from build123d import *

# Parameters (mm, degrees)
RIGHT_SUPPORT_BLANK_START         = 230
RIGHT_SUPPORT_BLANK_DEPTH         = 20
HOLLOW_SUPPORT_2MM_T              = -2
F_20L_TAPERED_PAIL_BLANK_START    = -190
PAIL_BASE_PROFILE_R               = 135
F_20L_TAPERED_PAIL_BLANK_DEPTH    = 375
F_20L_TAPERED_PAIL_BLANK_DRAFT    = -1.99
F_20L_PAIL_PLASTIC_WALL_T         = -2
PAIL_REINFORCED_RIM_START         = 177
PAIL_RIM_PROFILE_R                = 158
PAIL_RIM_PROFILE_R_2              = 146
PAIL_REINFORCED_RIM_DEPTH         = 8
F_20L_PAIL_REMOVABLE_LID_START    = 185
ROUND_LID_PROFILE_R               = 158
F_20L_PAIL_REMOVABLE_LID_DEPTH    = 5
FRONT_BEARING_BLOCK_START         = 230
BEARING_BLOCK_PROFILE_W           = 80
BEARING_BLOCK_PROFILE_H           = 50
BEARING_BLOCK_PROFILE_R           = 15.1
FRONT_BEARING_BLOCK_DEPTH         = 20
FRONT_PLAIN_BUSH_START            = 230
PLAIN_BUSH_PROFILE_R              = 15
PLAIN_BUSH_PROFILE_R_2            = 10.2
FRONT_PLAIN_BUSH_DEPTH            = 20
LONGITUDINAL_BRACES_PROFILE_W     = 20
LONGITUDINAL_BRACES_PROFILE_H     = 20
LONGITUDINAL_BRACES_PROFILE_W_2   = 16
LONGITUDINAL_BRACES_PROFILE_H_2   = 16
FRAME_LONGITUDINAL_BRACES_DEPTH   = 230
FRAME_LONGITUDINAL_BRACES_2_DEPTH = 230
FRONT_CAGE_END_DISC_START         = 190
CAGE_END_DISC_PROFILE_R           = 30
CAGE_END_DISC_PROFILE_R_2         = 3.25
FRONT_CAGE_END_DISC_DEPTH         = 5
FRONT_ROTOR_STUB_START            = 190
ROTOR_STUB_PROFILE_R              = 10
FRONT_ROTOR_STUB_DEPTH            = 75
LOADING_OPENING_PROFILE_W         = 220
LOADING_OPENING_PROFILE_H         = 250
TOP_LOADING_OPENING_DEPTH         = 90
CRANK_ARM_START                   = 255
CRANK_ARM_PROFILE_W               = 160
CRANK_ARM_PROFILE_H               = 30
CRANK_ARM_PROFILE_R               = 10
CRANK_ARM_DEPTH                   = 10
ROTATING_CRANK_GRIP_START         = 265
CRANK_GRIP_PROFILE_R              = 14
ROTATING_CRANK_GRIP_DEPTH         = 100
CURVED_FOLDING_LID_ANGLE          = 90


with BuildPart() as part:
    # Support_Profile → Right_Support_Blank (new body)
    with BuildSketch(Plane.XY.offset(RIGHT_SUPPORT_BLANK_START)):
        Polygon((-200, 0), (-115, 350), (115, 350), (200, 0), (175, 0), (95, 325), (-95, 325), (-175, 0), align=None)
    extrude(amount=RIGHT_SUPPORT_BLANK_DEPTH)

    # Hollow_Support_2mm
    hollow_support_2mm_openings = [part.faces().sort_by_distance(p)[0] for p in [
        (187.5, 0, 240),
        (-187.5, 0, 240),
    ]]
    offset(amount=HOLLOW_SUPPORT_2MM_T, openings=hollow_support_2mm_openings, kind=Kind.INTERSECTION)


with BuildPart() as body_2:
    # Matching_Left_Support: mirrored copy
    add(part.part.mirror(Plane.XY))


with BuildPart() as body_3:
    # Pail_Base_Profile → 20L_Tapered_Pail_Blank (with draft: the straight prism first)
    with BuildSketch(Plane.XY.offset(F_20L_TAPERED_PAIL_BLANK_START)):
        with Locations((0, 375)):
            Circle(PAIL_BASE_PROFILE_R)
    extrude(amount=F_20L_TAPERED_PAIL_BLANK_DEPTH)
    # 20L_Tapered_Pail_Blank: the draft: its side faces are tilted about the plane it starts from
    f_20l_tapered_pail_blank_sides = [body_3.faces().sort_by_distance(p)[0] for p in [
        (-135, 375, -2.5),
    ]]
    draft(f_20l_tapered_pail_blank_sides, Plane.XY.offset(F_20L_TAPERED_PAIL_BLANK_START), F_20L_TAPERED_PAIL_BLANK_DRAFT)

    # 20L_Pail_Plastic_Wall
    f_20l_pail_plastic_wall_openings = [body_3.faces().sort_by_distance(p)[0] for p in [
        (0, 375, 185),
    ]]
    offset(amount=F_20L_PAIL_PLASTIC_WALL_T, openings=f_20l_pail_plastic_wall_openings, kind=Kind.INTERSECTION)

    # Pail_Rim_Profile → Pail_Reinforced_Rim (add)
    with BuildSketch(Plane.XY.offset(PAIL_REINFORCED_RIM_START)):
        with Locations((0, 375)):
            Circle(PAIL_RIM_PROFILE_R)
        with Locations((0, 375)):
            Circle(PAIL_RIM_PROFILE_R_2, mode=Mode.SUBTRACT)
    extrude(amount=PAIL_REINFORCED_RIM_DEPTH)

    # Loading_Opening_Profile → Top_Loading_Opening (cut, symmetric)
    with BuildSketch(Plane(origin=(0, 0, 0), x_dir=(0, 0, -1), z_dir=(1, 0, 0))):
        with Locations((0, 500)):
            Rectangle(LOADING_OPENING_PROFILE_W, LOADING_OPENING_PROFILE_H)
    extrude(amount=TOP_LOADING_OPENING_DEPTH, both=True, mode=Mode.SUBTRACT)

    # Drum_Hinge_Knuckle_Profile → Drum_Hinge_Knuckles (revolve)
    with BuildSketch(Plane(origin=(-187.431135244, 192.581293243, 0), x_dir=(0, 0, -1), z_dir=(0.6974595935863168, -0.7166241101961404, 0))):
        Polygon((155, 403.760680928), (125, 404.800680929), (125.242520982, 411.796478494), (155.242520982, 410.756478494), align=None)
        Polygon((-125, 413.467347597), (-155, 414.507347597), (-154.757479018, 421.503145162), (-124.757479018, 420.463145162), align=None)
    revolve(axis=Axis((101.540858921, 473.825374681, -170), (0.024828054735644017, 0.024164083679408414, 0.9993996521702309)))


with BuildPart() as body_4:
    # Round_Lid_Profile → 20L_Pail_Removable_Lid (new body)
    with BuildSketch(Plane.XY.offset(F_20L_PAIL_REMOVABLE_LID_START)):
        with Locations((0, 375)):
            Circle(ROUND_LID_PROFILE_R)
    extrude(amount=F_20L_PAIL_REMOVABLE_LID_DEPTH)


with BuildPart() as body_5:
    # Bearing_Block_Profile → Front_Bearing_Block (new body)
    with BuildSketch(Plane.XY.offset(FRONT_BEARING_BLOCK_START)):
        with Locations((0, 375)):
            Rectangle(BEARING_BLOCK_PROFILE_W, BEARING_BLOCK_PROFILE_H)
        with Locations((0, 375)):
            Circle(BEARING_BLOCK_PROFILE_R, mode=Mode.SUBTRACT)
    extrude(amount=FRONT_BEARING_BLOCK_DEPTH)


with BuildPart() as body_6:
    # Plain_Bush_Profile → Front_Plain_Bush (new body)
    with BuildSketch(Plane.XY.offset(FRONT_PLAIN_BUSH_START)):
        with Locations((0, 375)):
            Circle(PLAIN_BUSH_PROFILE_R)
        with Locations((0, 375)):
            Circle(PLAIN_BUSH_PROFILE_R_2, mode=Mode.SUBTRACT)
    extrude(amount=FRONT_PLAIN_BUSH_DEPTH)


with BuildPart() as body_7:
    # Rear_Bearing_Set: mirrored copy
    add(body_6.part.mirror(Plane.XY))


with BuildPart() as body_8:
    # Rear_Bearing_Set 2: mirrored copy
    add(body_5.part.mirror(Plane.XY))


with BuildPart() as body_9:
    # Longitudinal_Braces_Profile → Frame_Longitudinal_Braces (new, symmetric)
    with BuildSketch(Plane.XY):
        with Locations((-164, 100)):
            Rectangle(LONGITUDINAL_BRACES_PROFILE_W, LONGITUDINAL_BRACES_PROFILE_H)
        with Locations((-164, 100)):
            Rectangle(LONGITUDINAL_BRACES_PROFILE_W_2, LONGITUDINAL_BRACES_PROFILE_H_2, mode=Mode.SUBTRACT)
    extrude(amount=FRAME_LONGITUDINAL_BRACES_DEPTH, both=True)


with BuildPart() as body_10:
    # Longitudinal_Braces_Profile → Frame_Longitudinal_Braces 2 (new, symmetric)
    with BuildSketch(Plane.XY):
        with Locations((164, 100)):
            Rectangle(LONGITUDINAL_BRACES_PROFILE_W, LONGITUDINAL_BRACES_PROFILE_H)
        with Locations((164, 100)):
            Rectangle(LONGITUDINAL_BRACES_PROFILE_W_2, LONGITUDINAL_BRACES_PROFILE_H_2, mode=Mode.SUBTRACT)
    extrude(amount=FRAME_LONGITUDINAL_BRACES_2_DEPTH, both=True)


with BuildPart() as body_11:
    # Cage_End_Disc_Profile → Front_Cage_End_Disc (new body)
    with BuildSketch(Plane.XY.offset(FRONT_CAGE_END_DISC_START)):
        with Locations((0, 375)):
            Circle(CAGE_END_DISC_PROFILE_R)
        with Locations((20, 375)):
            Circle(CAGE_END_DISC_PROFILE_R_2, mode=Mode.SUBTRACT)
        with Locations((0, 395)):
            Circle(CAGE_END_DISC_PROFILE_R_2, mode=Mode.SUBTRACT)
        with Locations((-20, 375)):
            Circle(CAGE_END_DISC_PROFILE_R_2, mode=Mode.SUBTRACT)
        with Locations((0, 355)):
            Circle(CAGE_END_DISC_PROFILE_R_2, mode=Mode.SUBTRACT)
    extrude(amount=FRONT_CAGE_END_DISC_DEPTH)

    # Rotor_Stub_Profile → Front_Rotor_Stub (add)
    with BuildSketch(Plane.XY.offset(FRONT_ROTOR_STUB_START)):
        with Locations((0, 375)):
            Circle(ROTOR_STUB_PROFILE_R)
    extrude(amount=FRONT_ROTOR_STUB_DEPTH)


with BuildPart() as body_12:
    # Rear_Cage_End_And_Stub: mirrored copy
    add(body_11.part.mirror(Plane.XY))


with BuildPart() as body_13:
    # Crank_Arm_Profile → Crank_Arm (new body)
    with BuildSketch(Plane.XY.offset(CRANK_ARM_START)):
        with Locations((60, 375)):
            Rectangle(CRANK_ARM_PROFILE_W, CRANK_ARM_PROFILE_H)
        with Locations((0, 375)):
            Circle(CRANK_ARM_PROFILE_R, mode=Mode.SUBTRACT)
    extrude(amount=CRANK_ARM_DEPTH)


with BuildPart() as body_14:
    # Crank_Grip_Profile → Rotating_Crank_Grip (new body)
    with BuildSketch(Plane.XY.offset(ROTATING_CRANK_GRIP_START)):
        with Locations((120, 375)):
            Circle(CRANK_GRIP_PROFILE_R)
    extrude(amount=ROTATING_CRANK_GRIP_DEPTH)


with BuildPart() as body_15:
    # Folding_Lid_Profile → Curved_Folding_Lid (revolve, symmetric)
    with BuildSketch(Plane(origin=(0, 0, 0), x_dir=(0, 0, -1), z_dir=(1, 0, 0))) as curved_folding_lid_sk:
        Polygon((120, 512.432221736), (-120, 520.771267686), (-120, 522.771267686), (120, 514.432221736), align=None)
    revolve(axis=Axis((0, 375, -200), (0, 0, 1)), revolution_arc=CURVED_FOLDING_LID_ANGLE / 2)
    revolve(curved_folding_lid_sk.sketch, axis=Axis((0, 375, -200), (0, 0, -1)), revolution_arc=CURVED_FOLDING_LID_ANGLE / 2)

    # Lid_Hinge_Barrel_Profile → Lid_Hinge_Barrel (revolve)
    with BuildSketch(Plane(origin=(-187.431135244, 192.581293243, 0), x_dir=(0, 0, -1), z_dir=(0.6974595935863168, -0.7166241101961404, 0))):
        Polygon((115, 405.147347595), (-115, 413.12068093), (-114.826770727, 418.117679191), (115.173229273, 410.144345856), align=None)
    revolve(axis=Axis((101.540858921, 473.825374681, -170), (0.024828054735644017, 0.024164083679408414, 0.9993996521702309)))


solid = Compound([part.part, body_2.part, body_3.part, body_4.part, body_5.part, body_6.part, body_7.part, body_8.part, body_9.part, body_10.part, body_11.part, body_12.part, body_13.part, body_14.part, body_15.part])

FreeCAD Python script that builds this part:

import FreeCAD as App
import Part
import Sketcher
from FreeCAD import Vector
Q = App.Units.Quantity


def faces_at(feature, points):
    """Names of the faces that lie closest to the given points."""
    faces = feature.Shape.Faces
    near = lambda p: min(range(len(faces)), key=lambda i: faces[i].distToShape(Part.Vertex(*p))[0])
    return sorted({f"Face{near(p) + 1}" for p in points})


def add_polygon(sketch, points):
    """Adds a closed chain of lines whose ends are joined by coincident constraints."""
    first, n = sketch.GeometryCount, len(points)
    for a, b in zip(points, points[1:] + points[:1]):
        sketch.addGeometry(Part.LineSegment(App.Vector(*a, 0), App.Vector(*b, 0)), False)
    for i in range(n):
        sketch.addConstraint(Sketcher.Constraint("Coincident", first + i, 2, first + (i + 1) % n, 1))

doc = App.newDocument("Part")
params = doc.addObject("Spreadsheet::Sheet", "Params")
for row, (alias, value) in enumerate([
    ("sketch1_width", "25 mm"),
    ("sketch1_width2", "190 mm"),
    ("sketch1_width3", "230 mm"),
    ("pad1_length", "20 mm"),
    ("thickness_wall", "2 mm"),
    ("sketch2_diameter", "270 mm"),
    ("pad2_length", "375 mm"),
    ("draft_angle", "1.99 deg"),
    ("thickness2_wall", "2 mm"),
    ("sketch3_diameter", "316 mm"),
    ("sketch3_diameter2", "292 mm"),
    ("pad3_length", "8 mm"),
    ("sketch4_width", "250 mm"),
    ("sketch4_height", "220 mm"),
    ("pocket1_length", "180 mm"),
    ("sketch5_length", "7 mm"),
    ("revolution_angle", "360 deg"),
    ("sketch6_diameter", "316 mm"),
    ("pad4_length", "5 mm"),
    ("sketch7_diameter", "30.2 mm"),
    ("sketch7_width", "80 mm"),
    ("sketch7_height", "50 mm"),
    ("pad5_length", "20 mm"),
    ("sketch8_diameter", "30 mm"),
    ("sketch8_diameter2", "20.4 mm"),
    ("pad6_length", "20 mm"),
    ("sketch9_width", "20 mm"),
    ("sketch9_width2", "16 mm"),
    ("pad7_length", "460 mm"),
    ("sketch10_width", "20 mm"),
    ("sketch10_width2", "16 mm"),
    ("pad8_length", "460 mm"),
    ("sketch11_diameter", "60 mm"),
    ("sketch11_diameter2", "6.5 mm"),
    ("pad9_length", "5 mm"),
    ("sketch12_diameter", "20 mm"),
    ("pad10_length", "75 mm"),
    ("sketch13_diameter", "20 mm"),
    ("sketch13_width", "160 mm"),
    ("sketch13_height", "30 mm"),
    ("pad11_length", "10 mm"),
    ("sketch14_diameter", "28 mm"),
    ("pad12_length", "100 mm"),
    ("sketch15_width", "2 mm"),
    ("sketch15_height", "240 mm"),
    ("revolution2_angle", "45 deg"),
    ("sketch16_width", "2 mm"),
    ("sketch16_height", "240 mm"),
    ("revolution3_angle", "45 deg"),
    ("sketch17_length", "5 mm"),
    ("revolution4_angle", "360 deg"),
], start=1):
    params.set(f"A{row}", alias)
    params.set(f"B{row}", "=" + value)
    params.setAlias(f"B{row}", alias)

body = doc.addObject("PartDesign::Body", "Body")

# Sketch on XY plane
sketch1 = body.newObject("Sketcher::SketchObject", "Sketch")
sketch1.AttachmentSupport = (doc.getObject("XY_Plane"), [""])
sketch1.MapMode = "FlatFace"
sketch1.AttachmentOffset = App.Placement(Vector(0, 0, 230), App.Rotation())
add_polygon(sketch1, [(-115, 350), (-200, 0), (-175, 0), (-95, 325), (95, 325), (175, 0), (200, 0), (115, 350)])  # lines 0-7
sketch1.addConstraint(Sketcher.Constraint("Horizontal", 1))
sketch1.addConstraint(Sketcher.Constraint("Horizontal", 3))
sketch1.addConstraint(Sketcher.Constraint("Horizontal", 5))
sketch1.addConstraint(Sketcher.Constraint("Horizontal", 7))
sketch1.addConstraint(Sketcher.Constraint("Symmetric", 1, 2, 4, 2, -1, 1))
sketch1.addConstraint(Sketcher.Constraint("Symmetric", 0, 2, 5, 2, -2))
sketch1.addConstraint(Sketcher.Constraint("Equal", 2, 4))
sketch1.addConstraint(Sketcher.Constraint("Equal", 0, 6))
sketch1.addConstraint(Sketcher.Constraint("DistanceX", 1, 1, 1, 2, Q("25 mm")))
sketch1.addConstraint(Sketcher.Constraint("DistanceX", 3, 1, 3, 2, Q("190 mm")))
sketch1.addConstraint(Sketcher.Constraint("DistanceX", 7, 2, 7, 1, Q("230 mm")))
sketch1.addConstraint(Sketcher.Constraint("DistanceX", 0, 2, -1, 1, Q("200 mm")))
sketch1.addConstraint(Sketcher.Constraint("DistanceY", -1, 1, 2, 2, Q("325 mm")))
sketch1.addConstraint(Sketcher.Constraint("DistanceY", -1, 1, 6, 2, Q("350 mm")))
sketch1.setExpression("Constraints[16]", "Params.sketch1_width")
sketch1.setExpression("Constraints[17]", "Params.sketch1_width2")
sketch1.setExpression("Constraints[18]", "Params.sketch1_width3")
pad1 = body.newObject("PartDesign::Pad", "Pad")
pad1.Profile = sketch1
pad1.setExpression("Length", "Params.pad1_length")
doc.recompute()

thickness = body.newObject("PartDesign::Thickness", "Thickness")
thickness.Base = (pad1, faces_at(pad1, [(187.5, 0, 240), (-187.5, 0, 240)]))
thickness.setExpression("Value", "Params.thickness_wall")
thickness.Reversed = True
thickness.Join = "Intersection"
body2 = doc.addObject("PartDesign::Body", "Body001")
doc.recompute()

mirroring = doc.addObject("Part::Mirroring", "Mirroring")
mirroring.Source = body
mirroring.Base = Vector(0, 0, 0)
mirroring.Normal = Vector(0, 0, 1)
body2.BaseFeature = mirroring
doc.recompute()
body3 = doc.addObject("PartDesign::Body", "Body002")

# Sketch on XY plane
sketch2 = body3.newObject("Sketcher::SketchObject", "Sketch001")
sketch2.AttachmentSupport = (doc.getObject("XY_Plane002"), [""])
sketch2.MapMode = "FlatFace"
sketch2.AttachmentOffset = App.Placement(Vector(0, 0, -190), App.Rotation())
sketch2.addGeometry(Part.Circle(Vector(0, 375, 0), Vector(0, 0, 1), 135), False)
sketch2.addConstraint(Sketcher.Constraint("PointOnObject", 0, 3, -2))
sketch2.addConstraint(Sketcher.Constraint("Diameter", 0, Q("270 mm")))
sketch2.addConstraint(Sketcher.Constraint("DistanceY", -1, 1, 0, 3, Q("375 mm")))
sketch2.setExpression("Constraints[1]", "Params.sketch2_diameter")
pad2 = body3.newObject("PartDesign::Pad", "Pad001")
pad2.Profile = sketch2
pad2.setExpression("Length", "Params.pad2_length")
doc.recompute()

datumplane = body3.newObject("PartDesign::Plane", "DatumPlane")
datumplane.AttachmentSupport = (doc.getObject("XY_Plane002"), [""])
datumplane.MapMode = "FlatFace"
datumplane.AttachmentOffset = App.Placement(Vector(0, 0, -190), App.Rotation())
draft = body3.newObject("PartDesign::Draft", "Draft")
draft.Base = (pad2, faces_at(pad2, [(-135, 375, -2.5)]))
draft.NeutralPlane = (datumplane, [""])
draft.setExpression("Angle", "Params.draft_angle")
draft.Reversed = True
doc.recompute()

thickness2 = body3.newObject("PartDesign::Thickness", "Thickness001")
thickness2.Base = (draft, faces_at(draft, [(0, 375, 185)]))
thickness2.setExpression("Value", "Params.thickness2_wall")
thickness2.Reversed = True
thickness2.Join = "Intersection"

# Sketch on XY plane
sketch3 = body3.newObject("Sketcher::SketchObject", "Sketch002")
sketch3.AttachmentSupport = (doc.getObject("XY_Plane002"), [""])
sketch3.MapMode = "FlatFace"
sketch3.AttachmentOffset = App.Placement(Vector(0, 0, 177), App.Rotation())
sketch3.addGeometry(Part.Circle(Vector(0, 375, 0), Vector(0, 0, 1), 158), False)
sketch3.addGeometry(Part.Circle(Vector(0, 375, 0), Vector(0, 0, 1), 146), False)
sketch3.addConstraint(Sketcher.Constraint("Coincident", 1, 3, 0, 3))
sketch3.addConstraint(Sketcher.Constraint("PointOnObject", 0, 3, -2))
sketch3.addConstraint(Sketcher.Constraint("Diameter", 0, Q("316 mm")))
sketch3.addConstraint(Sketcher.Constraint("Diameter", 1, Q("292 mm")))
sketch3.addConstraint(Sketcher.Constraint("DistanceY", -1, 1, 0, 3, Q("375 mm")))
sketch3.setExpression("Constraints[2]", "Params.sketch3_diameter")
sketch3.setExpression("Constraints[3]", "Params.sketch3_diameter2")
pad3 = body3.newObject("PartDesign::Pad", "Pad002")
pad3.Profile = sketch3
pad3.setExpression("Length", "Params.pad3_length")

# Sketch on YZ plane
sketch4 = body3.newObject("Sketcher::SketchObject", "Sketch003")
sketch4.AttachmentSupport = (doc.getObject("YZ_Plane002"), [""])
sketch4.MapMode = "FlatFace"
add_polygon(sketch4, [(625, 110), (375, 110), (375, -110), (625, -110)])  # lines 0-3
sketch4.addConstraint(Sketcher.Constraint("Horizontal", 0))
sketch4.addConstraint(Sketcher.Constraint("Vertical", 1))
sketch4.addConstraint(Sketcher.Constraint("Horizontal", 2))
sketch4.addConstraint(Sketcher.Constraint("Vertical", 3))
sketch4.addConstraint(Sketcher.Constraint("DistanceX", 0, 2, 0, 1, Q("250 mm")))
sketch4.addConstraint(Sketcher.Constraint("DistanceY", 1, 2, 1, 1, Q("220 mm")))
sketch4.addConstraint(Sketcher.Constraint("DistanceX", -1, 1, 0, 2, Q("375 mm")))
sketch4.addConstraint(Sketcher.Constraint("DistanceY", -1, 1, 0, 2, Q("110 mm")))
sketch4.setExpression("Constraints[8]", "Params.sketch4_width")
sketch4.setExpression("Constraints[9]", "Params.sketch4_height")
pocket1 = body3.newObject("PartDesign::Pocket", "Pocket")
pocket1.Profile = sketch4
pocket1.setExpression("Length", "Params.pocket1_length")
pocket1.Midplane = True

# Sketch on an angled plane
sketch5 = body3.newObject("Sketcher::SketchObject", "Sketch004")
sketch5.Placement = App.Placement(Vector(-187.431135, 192.581293, 0), App.Rotation(Vector(0, 0, -1), Vector(0.71662411, 0.697459594, 0), Vector(0.697459594, -0.71662411, 0), "ZXY"))
add_polygon(sketch5, [(125, 405), (155, 404), (155, 411), (125, 412)])  # lines 0-3
add_polygon(sketch5, [(-155, 415), (-125, 413), (-125, 420), (-155, 422)])  # lines 4-7
sketch5.addGeometry(Part.LineSegment(Vector(155, 404, 0), Vector(-155, 415, 0)), True)  # axis
sketch5.addConstraint(Sketcher.Constraint("Coincident", 8, 1, 0, 2))
sketch5.addConstraint(Sketcher.Constraint("Coincident", 8, 2, 7, 2))
sketch5.addConstraint(Sketcher.Constraint("Perpendicular", 0, 1))
sketch5.addConstraint(Sketcher.Constraint("Perpendicular", 1, 2))
sketch5.addConstraint(Sketcher.Constraint("Perpendicular", 2, 3))
sketch5.addConstraint(Sketcher.Constraint("Perpendicular", 3, 4))
sketch5.addConstraint(Sketcher.Constraint("Perpendicular", 4, 5))
sketch5.addConstraint(Sketcher.Constraint("Perpendicular", 5, 6))
sketch5.addConstraint(Sketcher.Constraint("Perpendicular", 6, 7))
sketch5.addConstraint(Sketcher.Constraint("Perpendicular", 7, 8))
sketch5.addConstraint(Sketcher.Constraint("Equal", 2, 4))
sketch5.addConstraint(Sketcher.Constraint("Equal", 3, 5))
sketch5.addConstraint(Sketcher.Constraint("Distance", 1, Q("7 mm")))
sketch5.addConstraint(Sketcher.Constraint("DistanceX", -1, 1, 0, 2, Q("155 mm")))
sketch5.addConstraint(Sketcher.Constraint("DistanceX", -1, 1, 3, 2, Q("125 mm")))
sketch5.addConstraint(Sketcher.Constraint("DistanceX", 4, 2, -1, 1, Q("125 mm")))
sketch5.addConstraint(Sketcher.Constraint("DistanceY", 1, 2, 2, 2, Q("1.04 mm")))
sketch5.addConstraint(Sketcher.Constraint("DistanceY", -1, 1, 0, 2, Q("403.760681 mm")))
sketch5.setExpression("Constraints[20]", "Params.sketch5_length")
revolution = body3.newObject("PartDesign::Revolution", "Revolution")
revolution.Profile = sketch5
revolution.ReferenceAxis = (sketch5, ["Axis0"])
revolution.setExpression("Angle", "Params.revolution_angle")
body4 = doc.addObject("PartDesign::Body", "Body003")

# Sketch on XY plane
sketch6 = body4.newObject("Sketcher::SketchObject", "Sketch005")
sketch6.AttachmentSupport = (doc.getObject("XY_Plane003"), [""])
sketch6.MapMode = "FlatFace"
sketch6.AttachmentOffset = App.Placement(Vector(0, 0, 185), App.Rotation())
sketch6.addGeometry(Part.Circle(Vector(0, 375, 0), Vector(0, 0, 1), 158), False)
sketch6.addConstraint(Sketcher.Constraint("PointOnObject", 0, 3, -2))
sketch6.addConstraint(Sketcher.Constraint("Diameter", 0, Q("316 mm")))
sketch6.addConstraint(Sketcher.Constraint("DistanceY", -1, 1, 0, 3, Q("375 mm")))
sketch6.setExpression("Constraints[1]", "Params.sketch6_diameter")
pad4 = body4.newObject("PartDesign::Pad", "Pad003")
pad4.Profile = sketch6
pad4.setExpression("Length", "Params.pad4_length")
body5 = doc.addObject("PartDesign::Body", "Body004")

# Sketch on XY plane
sketch7 = body5.newObject("Sketcher::SketchObject", "Sketch006")
sketch7.AttachmentSupport = (doc.getObject("XY_Plane004"), [""])
sketch7.MapMode = "FlatFace"
sketch7.AttachmentOffset = App.Placement(Vector(0, 0, 230), App.Rotation())
add_polygon(sketch7, [(-40, 400), (-40, 350), (40, 350), (40, 400)])  # lines 0-3
sketch7.addGeometry(Part.Circle(Vector(0, 375, 0), Vector(0, 0, 1), 15), False)  # 4
sketch7.addConstraint(Sketcher.Constraint("Vertical", 0))
sketch7.addConstraint(Sketcher.Constraint("Horizontal", 1))
sketch7.addConstraint(Sketcher.Constraint("Vertical", 2))
sketch7.addConstraint(Sketcher.Constraint("Horizontal", 3))
sketch7.addConstraint(Sketcher.Constraint("PointOnObject", 4, 3, -2))
sketch7.addConstraint(Sketcher.Constraint("Diameter", 4, Q("30.2 mm")))
sketch7.addConstraint(Sketcher.Constraint("DistanceX", 1, 1, 1, 2, Q("80 mm")))
sketch7.addConstraint(Sketcher.Constraint("DistanceY", 0, 2, 0, 1, Q("50 mm")))
sketch7.addConstraint(Sketcher.Constraint("DistanceY", -1, 1, 4, 3, Q("375 mm")))
sketch7.addConstraint(Sketcher.Constraint("DistanceX", 0, 2, -1, 1, Q("40 mm")))
sketch7.addConstraint(Sketcher.Constraint("DistanceY", -1, 1, 0, 2, Q("350 mm")))
sketch7.setExpression("Constraints[9]", "Params.sketch7_diameter")
sketch7.setExpression("Constraints[10]", "Params.sketch7_width")
sketch7.setExpression("Constraints[11]", "Params.sketch7_height")
pad5 = body5.newObject("PartDesign::Pad", "Pad004")
pad5.Profile = sketch7
pad5.setExpression("Length", "Params.pad5_length")
body6 = doc.addObject("PartDesign::Body", "Body005")

# Sketch on XY plane
sketch8 = body6.newObject("Sketcher::SketchObject", "Sketch007")
sketch8.AttachmentSupport = (doc.getObject("XY_Plane005"), [""])
sketch8.MapMode = "FlatFace"
sketch8.AttachmentOffset = App.Placement(Vector(0, 0, 230), App.Rotation())
sketch8.addGeometry(Part.Circle(Vector(0, 375, 0), Vector(0, 0, 1), 15), False)
sketch8.addGeometry(Part.Circle(Vector(0, 375, 0), Vector(0, 0, 1), 10), False)
sketch8.addConstraint(Sketcher.Constraint("Coincident", 1, 3, 0, 3))
sketch8.addConstraint(Sketcher.Constraint("PointOnObject", 0, 3, -2))
sketch8.addConstraint(Sketcher.Constraint("Diameter", 0, Q("30 mm")))
sketch8.addConstraint(Sketcher.Constraint("Diameter", 1, Q("20.4 mm")))
sketch8.addConstraint(Sketcher.Constraint("DistanceY", -1, 1, 0, 3, Q("375 mm")))
sketch8.setExpression("Constraints[2]", "Params.sketch8_diameter")
sketch8.setExpression("Constraints[3]", "Params.sketch8_diameter2")
pad6 = body6.newObject("PartDesign::Pad", "Pad005")
pad6.Profile = sketch8
pad6.setExpression("Length", "Params.pad6_length")
body7 = doc.addObject("PartDesign::Body", "Body006")
doc.recompute()

mirroring2 = doc.addObject("Part::Mirroring", "Mirroring001")
mirroring2.Source = body6
mirroring2.Base = Vector(0, 0, 0)
mirroring2.Normal = Vector(0, 0, 1)
body7.BaseFeature = mirroring2
doc.recompute()
body8 = doc.addObject("PartDesign::Body", "Body007")
doc.recompute()

mirroring3 = doc.addObject("Part::Mirroring", "Mirroring002")
mirroring3.Source = body5
mirroring3.Base = Vector(0, 0, 0)
mirroring3.Normal = Vector(0, 0, 1)
body8.BaseFeature = mirroring3
doc.recompute()
body9 = doc.addObject("PartDesign::Body", "Body008")

# Sketch on XY plane
sketch9 = body9.newObject("Sketcher::SketchObject", "Sketch008")
sketch9.AttachmentSupport = (doc.getObject("XY_Plane008"), [""])
sketch9.MapMode = "FlatFace"
add_polygon(sketch9, [(-174, 110), (-174, 90), (-154, 90), (-154, 110)])  # lines 0-3
add_polygon(sketch9, [(-156, 92), (-172, 92), (-172, 108), (-156, 108)])  # lines 4-7
sketch9.addConstraint(Sketcher.Constraint("Vertical", 0))
sketch9.addConstraint(Sketcher.Constraint("Horizontal", 1))
sketch9.addConstraint(Sketcher.Constraint("Vertical", 2))
sketch9.addConstraint(Sketcher.Constraint("Horizontal", 3))
sketch9.addConstraint(Sketcher.Constraint("Horizontal", 4))
sketch9.addConstraint(Sketcher.Constraint("Vertical", 5))
sketch9.addConstraint(Sketcher.Constraint("Horizontal", 6))
sketch9.addConstraint(Sketcher.Constraint("Vertical", 7))
sketch9.addConstraint(Sketcher.Constraint("Equal", 3, 0))
sketch9.addConstraint(Sketcher.Constraint("Equal", 6, 5))
sketch9.addConstraint(Sketcher.Constraint("DistanceX", 1, 1, 1, 2, Q("20 mm")))
sketch9.addConstraint(Sketcher.Constraint("DistanceX", 4, 2, 4, 1, Q("16 mm")))
sketch9.addConstraint(Sketcher.Constraint("DistanceX", 0, 2, -1, 1, Q("174 mm")))
sketch9.addConstraint(Sketcher.Constraint("DistanceY", -1, 1, 0, 2, Q("90 mm")))
sketch9.addConstraint(Sketcher.Constraint("DistanceX", 4, 2, -1, 1, Q("172 mm")))
sketch9.addConstraint(Sketcher.Constraint("DistanceY", -1, 1, 4, 2, Q("92 mm")))
sketch9.setExpression("Constraints[18]", "Params.sketch9_width")
sketch9.setExpression("Constraints[19]", "Params.sketch9_width2")
pad7 = body9.newObject("PartDesign::Pad", "Pad006")
pad7.Profile = sketch9
pad7.setExpression("Length", "Params.pad7_length")
pad7.Midplane = True
body10 = doc.addObject("PartDesign::Body", "Body009")

# Sketch on XY plane
sketch10 = body10.newObject("Sketcher::SketchObject", "Sketch009")
sketch10.AttachmentSupport = (doc.getObject("XY_Plane009"), [""])
sketch10.MapMode = "FlatFace"
add_polygon(sketch10, [(154, 110), (154, 90), (174, 90), (174, 110)])  # lines 0-3
add_polygon(sketch10, [(172, 92), (156, 92), (156, 108), (172, 108)])  # lines 4-7
sketch10.addConstraint(Sketcher.Constraint("Vertical", 0))
sketch10.addConstraint(Sketcher.Constraint("Horizontal", 1))
sketch10.addConstraint(Sketcher.Constraint("Vertical", 2))
sketch10.addConstraint(Sketcher.Constraint("Horizontal", 3))
sketch10.addConstraint(Sketcher.Constraint("Horizontal", 4))
sketch10.addConstraint(Sketcher.Constraint("Vertical", 5))
sketch10.addConstraint(Sketcher.Constraint("Horizontal", 6))
sketch10.addConstraint(Sketcher.Constraint("Vertical", 7))
sketch10.addConstraint(Sketcher.Constraint("Equal", 3, 0))
sketch10.addConstraint(Sketcher.Constraint("Equal", 6, 5))
sketch10.addConstraint(Sketcher.Constraint("DistanceX", 1, 1, 1, 2, Q("20 mm")))
sketch10.addConstraint(Sketcher.Constraint("DistanceX", 4, 2, 4, 1, Q("16 mm")))
sketch10.addConstraint(Sketcher.Constraint("DistanceX", -1, 1, 0, 2, Q("154 mm")))
sketch10.addConstraint(Sketcher.Constraint("DistanceY", -1, 1, 0, 2, Q("90 mm")))
sketch10.addConstraint(Sketcher.Constraint("DistanceX", -1, 1, 4, 2, Q("156 mm")))
sketch10.addConstraint(Sketcher.Constraint("DistanceY", -1, 1, 4, 2, Q("92 mm")))
sketch10.setExpression("Constraints[18]", "Params.sketch10_width")
sketch10.setExpression("Constraints[19]", "Params.sketch10_width2")
pad8 = body10.newObject("PartDesign::Pad", "Pad007")
pad8.Profile = sketch10
pad8.setExpression("Length", "Params.pad8_length")
pad8.Midplane = True
body11 = doc.addObject("PartDesign::Body", "Body010")

# Sketch on XY plane
sketch11 = body11.newObject("Sketcher::SketchObject", "Sketch010")
sketch11.AttachmentSupport = (doc.getObject("XY_Plane010"), [""])
sketch11.MapMode = "FlatFace"
sketch11.AttachmentOffset = App.Placement(Vector(0, 0, 190), App.Rotation())
sketch11.addGeometry(Part.Circle(Vector(0, 375, 0), Vector(0, 0, 1), 30), False)
sketch11.addGeometry(Part.Circle(Vector(0, 355, 0), Vector(0, 0, 1), 3.2), False)
sketch11.addGeometry(Part.Circle(Vector(-20, 375, 0), Vector(0, 0, 1), 3.2), False)
sketch11.addGeometry(Part.Circle(Vector(20, 375, 0), Vector(0, 0, 1), 3.2), False)
sketch11.addGeometry(Part.Circle(Vector(0, 395, 0), Vector(0, 0, 1), 3.2), False)
sketch11.addConstraint(Sketcher.Constraint("Equal", 1, 2))
sketch11.addConstraint(Sketcher.Constraint("Equal", 2, 3))
sketch11.addConstraint(Sketcher.Constraint("Equal", 3, 4))
sketch11.addConstraint(Sketcher.Constraint("Symmetric", 2, 3, 3, 3, -2))
sketch11.addConstraint(Sketcher.Constraint("PointOnObject", 0, 3, -2))
sketch11.addConstraint(Sketcher.Constraint("PointOnObject", 1, 3, -2))
sketch11.addConstraint(Sketcher.Constraint("PointOnObject", 4, 3, -2))
sketch11.addConstraint(Sketcher.Constraint("Horizontal", 0, 3, 2, 3))
sketch11.addConstraint(Sketcher.Constraint("Diameter", 0, Q("60 mm")))
sketch11.addConstraint(Sketcher.Constraint("Diameter", 1, Q("6.5 mm")))
sketch11.addConstraint(Sketcher.Constraint("DistanceY", -1, 1, 0, 3, Q("375 mm")))
sketch11.addConstraint(Sketcher.Constraint("DistanceY", -1, 1, 1, 3, Q("355 mm")))
sketch11.addConstraint(Sketcher.Constraint("DistanceX", 2, 3, -1, 1, Q("20 mm")))
sketch11.addConstraint(Sketcher.Constraint("DistanceY", -1, 1, 4, 3, Q("395 mm")))
sketch11.setExpression("Constraints[8]", "Params.sketch11_diameter")
sketch11.setExpression("Constraints[9]", "Params.sketch11_diameter2")
pad9 = body11.newObject("PartDesign::Pad", "Pad008")
pad9.Profile = sketch11
pad9.setExpression("Length", "Params.pad9_length")

# Sketch on XY plane
sketch12 = body11.newObject("Sketcher::SketchObject", "Sketch011")
sketch12.AttachmentSupport = (doc.getObject("XY_Plane010"), [""])
sketch12.MapMode = "FlatFace"
sketch12.AttachmentOffset = App.Placement(Vector(0, 0, 190), App.Rotation())
sketch12.addGeometry(Part.Circle(Vector(0, 375, 0), Vector(0, 0, 1), 10), False)
sketch12.addConstraint(Sketcher.Constraint("PointOnObject", 0, 3, -2))
sketch12.addConstraint(Sketcher.Constraint("Diameter", 0, Q("20 mm")))
sketch12.addConstraint(Sketcher.Constraint("DistanceY", -1, 1, 0, 3, Q("375 mm")))
sketch12.setExpression("Constraints[1]", "Params.sketch12_diameter")
pad10 = body11.newObject("PartDesign::Pad", "Pad009")
pad10.Profile = sketch12
pad10.setExpression("Length", "Params.pad10_length")
body12 = doc.addObject("PartDesign::Body", "Body011")
doc.recompute()

mirroring4 = doc.addObject("Part::Mirroring", "Mirroring003")
mirroring4.Source = body11
mirroring4.Base = Vector(0, 0, 0)
mirroring4.Normal = Vector(0, 0, 1)
body12.BaseFeature = mirroring4
doc.recompute()
body13 = doc.addObject("PartDesign::Body", "Body012")

# Sketch on XY plane
sketch13 = body13.newObject("Sketcher::SketchObject", "Sketch012")
sketch13.AttachmentSupport = (doc.getObject("XY_Plane012"), [""])
sketch13.MapMode = "FlatFace"
sketch13.AttachmentOffset = App.Placement(Vector(0, 0, 255), App.Rotation())
add_polygon(sketch13, [(-20, 390), (-20, 360), (140, 360), (140, 390)])  # lines 0-3
sketch13.addGeometry(Part.Circle(Vector(0, 375, 0), Vector(0, 0, 1), 10), False)  # 4
sketch13.addConstraint(Sketcher.Constraint("Vertical", 0))
sketch13.addConstraint(Sketcher.Constraint("Horizontal", 1))
sketch13.addConstraint(Sketcher.Constraint("Vertical", 2))
sketch13.addConstraint(Sketcher.Constraint("Horizontal", 3))
sketch13.addConstraint(Sketcher.Constraint("PointOnObject", 4, 3, -2))
sketch13.addConstraint(Sketcher.Constraint("Diameter", 4, Q("20 mm")))
sketch13.addConstraint(Sketcher.Constraint("DistanceX", 1, 1, 1, 2, Q("160 mm")))
sketch13.addConstraint(Sketcher.Constraint("DistanceY", 0, 2, 0, 1, Q("30 mm")))
sketch13.addConstraint(Sketcher.Constraint("DistanceY", -1, 1, 4, 3, Q("375 mm")))
sketch13.addConstraint(Sketcher.Constraint("DistanceX", 0, 2, -1, 1, Q("20 mm")))
sketch13.addConstraint(Sketcher.Constraint("DistanceY", -1, 1, 0, 2, Q("360 mm")))
sketch13.setExpression("Constraints[9]", "Params.sketch13_diameter")
sketch13.setExpression("Constraints[10]", "Params.sketch13_width")
sketch13.setExpression("Constraints[11]", "Params.sketch13_height")
pad11 = body13.newObject("PartDesign::Pad", "Pad010")
pad11.Profile = sketch13
pad11.setExpression("Length", "Params.pad11_length")
body14 = doc.addObject("PartDesign::Body", "Body013")

# Sketch on XY plane
sketch14 = body14.newObject("Sketcher::SketchObject", "Sketch013")
sketch14.AttachmentSupport = (doc.getObject("XY_Plane013"), [""])
sketch14.MapMode = "FlatFace"
sketch14.AttachmentOffset = App.Placement(Vector(0, 0, 265), App.Rotation())
sketch14.addGeometry(Part.Circle(Vector(120, 375, 0), Vector(0, 0, 1), 14), False)
sketch14.addConstraint(Sketcher.Constraint("Diameter", 0, Q("28 mm")))
sketch14.addConstraint(Sketcher.Constraint("DistanceX", -1, 1, 0, 3, Q("120 mm")))
sketch14.addConstraint(Sketcher.Constraint("DistanceY", -1, 1, 0, 3, Q("375 mm")))
sketch14.setExpression("Constraints[0]", "Params.sketch14_diameter")
pad12 = body14.newObject("PartDesign::Pad", "Pad011")
pad12.Profile = sketch14
pad12.setExpression("Length", "Params.pad12_length")
body15 = doc.addObject("PartDesign::Body", "Body014")

# Sketch on YZ plane
sketch15 = body15.newObject("Sketcher::SketchObject", "Sketch014")
sketch15.AttachmentSupport = (doc.getObject("YZ_Plane014"), [""])
sketch15.MapMode = "FlatFace"
add_polygon(sketch15, [(520.8, 120), (512.4, -120), (514.4, -120), (522.8, 120)])  # lines 0-3
sketch15.addGeometry(Part.LineSegment(Vector(375, -120, 0), Vector(375, 120, 0)), True)  # axis
sketch15.addConstraint(Sketcher.Constraint("Horizontal", 1))
sketch15.addConstraint(Sketcher.Constraint("Horizontal", 3))
sketch15.addConstraint(Sketcher.Constraint("Vertical", 4))
sketch15.addConstraint(Sketcher.Constraint("Parallel", 0, 2))
sketch15.addConstraint(Sketcher.Constraint("Horizontal", 1, 2, 4, 1))
sketch15.addConstraint(Sketcher.Constraint("Horizontal", 3, 2, 4, 2))
sketch15.addConstraint(Sketcher.Constraint("DistanceX", 1, 1, 1, 2, Q("2 mm")))
sketch15.addConstraint(Sketcher.Constraint("DistanceY", 4, 1, 4, 2, Q("240 mm")))
sketch15.addConstraint(Sketcher.Constraint("DistanceY", 0, 2, -1, 1, Q("120 mm")))
sketch15.addConstraint(Sketcher.Constraint("DistanceX", -1, 1, 4, 1, Q("375 mm")))
sketch15.addConstraint(Sketcher.Constraint("Angle", 0, Q("-91.99 deg")))
sketch15.addConstraint(Sketcher.Constraint("DistanceX", -1, 1, 0, 2, Q("512.432222 mm")))
sketch15.setExpression("Constraints[10]", "Params.sketch15_width")
sketch15.setExpression("Constraints[11]", "Params.sketch15_height")
revolution2 = body15.newObject("PartDesign::Revolution", "Revolution001")
revolution2.Profile = sketch15
revolution2.ReferenceAxis = (sketch15, ["Axis0"])
revolution2.setExpression("Angle", "Params.revolution2_angle")

# Sketch on YZ plane
sketch16 = body15.newObject("Sketcher::SketchObject", "Sketch015")
sketch16.AttachmentSupport = (doc.getObject("YZ_Plane014"), [""])
sketch16.MapMode = "FlatFace"
add_polygon(sketch16, [(520.8, 120), (512.4, -120), (514.4, -120), (522.8, 120)])  # lines 0-3
sketch16.addGeometry(Part.LineSegment(Vector(375, 120, 0), Vector(375, -120, 0)), True)  # axis
sketch16.addConstraint(Sketcher.Constraint("Horizontal", 1))
sketch16.addConstraint(Sketcher.Constraint("Horizontal", 3))
sketch16.addConstraint(Sketcher.Constraint("Vertical", 4))
sketch16.addConstraint(Sketcher.Constraint("Parallel", 0, 2))
sketch16.addConstraint(Sketcher.Constraint("Horizontal", 3, 2, 4, 1))
sketch16.addConstraint(Sketcher.Constraint("Horizontal", 1, 2, 4, 2))
sketch16.addConstraint(Sketcher.Constraint("DistanceX", 1, 1, 1, 2, Q("2 mm")))
sketch16.addConstraint(Sketcher.Constraint("DistanceY", 4, 2, 4, 1, Q("240 mm")))
sketch16.addConstraint(Sketcher.Constraint("DistanceY", 0, 2, -1, 1, Q("120 mm")))
sketch16.addConstraint(Sketcher.Constraint("DistanceX", -1, 1, 4, 1, Q("375 mm")))
sketch16.addConstraint(Sketcher.Constraint("Angle", 0, Q("-91.99 deg")))
sketch16.addConstraint(Sketcher.Constraint("DistanceX", -1, 1, 0, 2, Q("512.432222 mm")))
sketch16.setExpression("Constraints[10]", "Params.sketch16_width")
sketch16.setExpression("Constraints[11]", "Params.sketch16_height")
revolution3 = body15.newObject("PartDesign::Revolution", "Revolution002")
revolution3.Profile = sketch16
revolution3.ReferenceAxis = (sketch16, ["Axis0"])
revolution3.setExpression("Angle", "Params.revolution3_angle")

# Sketch on an angled plane
sketch17 = body15.newObject("Sketcher::SketchObject", "Sketch016")
sketch17.Placement = App.Placement(Vector(-187.431135, 192.581293, 0), App.Rotation(Vector(0, 0, -1), Vector(0.71662411, 0.697459594, 0), Vector(0.697459594, -0.71662411, 0), "ZXY"))
add_polygon(sketch17, [(-115, 413), (115, 405), (115, 410), (-115, 418)])  # lines 0-3
sketch17.addGeometry(Part.LineSegment(Vector(115, 405, 0), Vector(-115, 413, 0)), True)  # axis
sketch17.addConstraint(Sketcher.Constraint("Coincident", 4, 1, 0, 2))
sketch17.addConstraint(Sketcher.Constraint("Coincident", 4, 2, 3, 2))
sketch17.addConstraint(Sketcher.Constraint("Perpendicular", 0, 1))
sketch17.addConstraint(Sketcher.Constraint("Perpendicular", 1, 2))
sketch17.addConstraint(Sketcher.Constraint("Perpendicular", 2, 3))
sketch17.addConstraint(Sketcher.Constraint("Distance", 1, Q("5 mm")))
sketch17.addConstraint(Sketcher.Constraint("DistanceX", -1, 1, 0, 2, Q("115 mm")))
sketch17.addConstraint(Sketcher.Constraint("DistanceX", 3, 2, -1, 1, Q("115 mm")))
sketch17.addConstraint(Sketcher.Constraint("DistanceX", -1, 1, 1, 2, Q("115.173229 mm")))
sketch17.addConstraint(Sketcher.Constraint("DistanceY", -1, 1, 2, 2, Q("418.117679 mm")))
sketch17.setExpression("Constraints[9]", "Params.sketch17_length")
revolution4 = body15.newObject("PartDesign::Revolution", "Revolution003")
revolution4.Profile = sketch17
revolution4.ReferenceAxis = (sketch17, ["Axis0"])
revolution4.setExpression("Angle", "Params.revolution4_angle")
mirroring.Visibility = False
mirroring2.Visibility = False
mirroring3.Visibility = False
mirroring4.Visibility = False

doc.recompute()
